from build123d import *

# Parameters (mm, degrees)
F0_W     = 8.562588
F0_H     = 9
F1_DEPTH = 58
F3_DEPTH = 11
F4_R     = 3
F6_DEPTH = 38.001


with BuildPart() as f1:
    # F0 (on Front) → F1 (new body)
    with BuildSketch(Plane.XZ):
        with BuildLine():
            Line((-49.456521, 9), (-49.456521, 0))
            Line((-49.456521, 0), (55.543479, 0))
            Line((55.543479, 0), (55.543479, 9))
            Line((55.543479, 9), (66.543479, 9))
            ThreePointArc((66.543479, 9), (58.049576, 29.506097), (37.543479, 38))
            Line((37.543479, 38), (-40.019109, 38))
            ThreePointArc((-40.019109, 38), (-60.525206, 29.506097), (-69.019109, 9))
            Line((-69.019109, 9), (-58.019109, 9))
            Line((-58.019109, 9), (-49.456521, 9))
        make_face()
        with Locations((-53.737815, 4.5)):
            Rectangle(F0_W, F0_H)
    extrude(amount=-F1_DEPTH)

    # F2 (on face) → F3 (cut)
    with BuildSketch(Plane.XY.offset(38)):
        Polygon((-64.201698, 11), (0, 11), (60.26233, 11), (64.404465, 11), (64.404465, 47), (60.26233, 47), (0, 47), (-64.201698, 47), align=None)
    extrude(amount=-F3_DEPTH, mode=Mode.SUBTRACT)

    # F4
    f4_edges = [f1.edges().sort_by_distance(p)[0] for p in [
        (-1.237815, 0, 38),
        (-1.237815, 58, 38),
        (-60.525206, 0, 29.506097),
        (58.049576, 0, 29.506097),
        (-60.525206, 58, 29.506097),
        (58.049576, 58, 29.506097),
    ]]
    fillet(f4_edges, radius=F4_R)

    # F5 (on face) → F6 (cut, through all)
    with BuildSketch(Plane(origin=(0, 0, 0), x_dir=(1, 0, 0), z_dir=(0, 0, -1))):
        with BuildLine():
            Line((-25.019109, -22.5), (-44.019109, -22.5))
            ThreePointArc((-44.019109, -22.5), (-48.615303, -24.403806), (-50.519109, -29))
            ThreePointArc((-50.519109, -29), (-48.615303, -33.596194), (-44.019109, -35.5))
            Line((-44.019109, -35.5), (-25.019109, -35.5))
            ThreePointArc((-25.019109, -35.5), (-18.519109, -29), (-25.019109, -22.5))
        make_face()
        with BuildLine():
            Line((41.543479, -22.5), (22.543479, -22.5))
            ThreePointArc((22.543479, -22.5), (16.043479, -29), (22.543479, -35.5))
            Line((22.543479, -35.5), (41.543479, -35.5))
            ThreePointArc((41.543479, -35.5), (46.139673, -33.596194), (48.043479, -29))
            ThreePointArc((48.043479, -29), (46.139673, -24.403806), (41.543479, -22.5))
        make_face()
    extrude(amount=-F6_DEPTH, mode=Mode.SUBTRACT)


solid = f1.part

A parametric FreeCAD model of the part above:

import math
import FreeCAD as App
import Part
import Sketcher
Q = App.Units.Quantity


def edges_at(feature, points):
    """Names of the edges that pass closest to the given points."""
    edges = feature.Shape.Edges
    near = lambda p: min(range(len(edges)), key=lambda i: edges[i].distToShape(Part.Vertex(*p))[0])
    return sorted({f"Edge{near(p) + 1}" for p in points})


def add_polygon(sketch, points):
    """Adds a closed chain of lines whose ends are joined by coincident constraints."""
    first, n = sketch.GeometryCount, len(points)
    for a, b in zip(points, points[1:] + points[:1]):
        sketch.addGeometry(Part.LineSegment(App.Vector(*a, 0), App.Vector(*b, 0)), False)
    for i in range(n):
        sketch.addConstraint(Sketcher.Constraint("Coincident", first + i, 2, first + (i + 1) % n, 1))

doc = App.newDocument("Part")
body = doc.addObject("PartDesign::Body", "Body")

# Sketch on XZ plane
sketch1 = body.newObject("Sketcher::SketchObject", "Sketch")
sketch1.AttachmentSupport = (doc.getObject("XZ_Plane"), [""])
sketch1.MapMode = "FlatFace"
sketch1.addGeometry([
    Part.LineSegment(App.Vector(55.543479, 0, 0), App.Vector(55.543479, 9, 0)),  # 0
    Part.LineSegment(App.Vector(55.543479, 9, 0), App.Vector(66.543479, 9, 0)),  # 1
    Part.ArcOfCircle(Part.Circle(App.Vector(37.54348, 9.000001, 0), App.Vector(0, 0, 1), 28.999999), math.radians(-0.000002), math.radians(90.000002)),  # 2
    Part.LineSegment(App.Vector(37.543479, 38, 0), App.Vector(-40.019109, 38, 0)),  # 3
    Part.ArcOfCircle(Part.Circle(App.Vector(-40.01911, 9.000001, 0), App.Vector(0, 0, 1), 28.999999), math.radians(89.999998), math.radians(180.000002)),  # 4
    Part.LineSegment(App.Vector(-69.019109, 9, 0), App.Vector(-58.019109, 9, 0)),  # 5
    Part.LineSegment(App.Vector(-58.019109, 9, 0), App.Vector(-58.019109, 0, 0)),  # 6
    Part.LineSegment(App.Vector(-58.019109, 0, 0), App.Vector(55.543479, 0, 0)),  # 7
], False)
sketch1.addConstraint([
    Sketcher.Constraint("Coincident", 0, 2, 1, 1),
    Sketcher.Constraint("Coincident", 1, 2, 2, 1),
    Sketcher.Constraint("Tangent", 2, 2, 3, 1),
    Sketcher.Constraint("Tangent", 3, 2, 4, 1),
    Sketcher.Constraint("Coincident", 4, 2, 5, 1),
    Sketcher.Constraint("Coincident", 5, 2, 6, 1),
    Sketcher.Constraint("Coincident", 6, 2, 7, 1),
    Sketcher.Constraint("Coincident", 7, 2, 0, 1),
    Sketcher.Constraint("Vertical", 0),
    Sketcher.Constraint("Horizontal", 1),
    Sketcher.Constraint("Horizontal", 3),
    Sketcher.Constraint("Horizontal", 5),
    Sketcher.Constraint("Vertical", 6),
    Sketcher.Constraint("Horizontal", 7),
    Sketcher.Constraint("Equal", 2, 4),
    Sketcher.Constraint("PointOnObject", 6, 2, -1),
    Sketcher.Constraint("Horizontal", 4, 3, 0, 2),
    Sketcher.Constraint("Horizontal", 1, 2, 4, 2),
    Sketcher.Constraint("Equal", 1, 5),
    Sketcher.Constraint("Radius", 2, Q("28.999999 mm")),
    Sketcher.Constraint("DistanceX", 1, 1, 1, 2, Q("11 mm")),
    Sketcher.Constraint("DistanceY", 0, 1, 0, 2, Q("9 mm")),
    Sketcher.Constraint("DistanceX", 3, 2, 3, 1, Q("77.562588 mm")),
    Sketcher.Constraint("DistanceX", -1, 1, 2, 3, Q("37.54348 mm")),
])
pad1 = body.newObject("PartDesign::Pad", "Pad")
pad1.Profile = sketch1
pad1.Length = 58
pad1.Reversed = True

# Sketch on XY plane
sketch2 = body.newObject("Sketcher::SketchObject", "Sketch001")
sketch2.AttachmentSupport = (doc.getObject("XY_Plane"), [""])
sketch2.MapMode = "FlatFace"
sketch2.AttachmentOffset = App.Placement(App.Vector(0, 0, 38), App.Rotation())
add_polygon(sketch2, [(-64.201698, 11), (64.404465, 11), (64.404465, 47), (-64.201698, 47)])  # lines 0-3
sketch2.addConstraint([
    Sketcher.Constraint("Horizontal", 0),
    Sketcher.Constraint("Vertical", 1),
    Sketcher.Constraint("Horizontal", 2),
    Sketcher.Constraint("Vertical", 3),
    Sketcher.Constraint("DistanceY", 1, 1, 1, 2, Q("36 mm")),
    Sketcher.Constraint("DistanceY", -1, 1, 0, 2, Q("11 mm")),
    Sketcher.Constraint("DistanceX", 0, 1, 0, 2, Q("128.606163 mm")),
    Sketcher.Constraint("DistanceX", -1, 1, 0, 2, Q("64.404465 mm")),
])
pocket1 = body.newObject("PartDesign::Pocket", "Pocket")
pocket1.Profile = sketch2
pocket1.Length = 11
doc.recompute()

fillet = body.newObject("PartDesign::Fillet", "Fillet")
fillet.Base = (pocket1, edges_at(pocket1, [
    (-1.238, 0, 38),
    (-1.238, 58, 38),
    (-60.525, 0, 29.506),
    (58.05, 0, 29.506),
    (-60.525, 58, 29.506),
    (58.05, 58, 29.506),
]))
fillet.Radius = 3

# Sketch on XY plane
sketch3 = body.newObject("Sketcher::SketchObject", "Sketch002")
sketch3.AttachmentSupport = (doc.getObject("XY_Plane"), [""])
sketch3.MapMode = "FlatFace"
sketch3.addGeometry([
    Part.LineSegment(App.Vector(-25.019109, 22.5, 0), App.Vector(-44.019109, 22.5, 0)),  # 0
    Part.ArcOfCircle(Part.Circle(App.Vector(-44.019109, 29, 0), App.Vector(0, 0, 1), 6.5), math.radians(-179.999998), math.radians(-90.000002)),  # 1
    Part.ArcOfCircle(Part.Circle(App.Vector(-44.019109, 29, 0), App.Vector(0, 0, 1), 6.5), math.radians(90.000002), math.radians(179.999998)),  # 2
    Part.LineSegment(App.Vector(-44.019109, 35.5, 0), App.Vector(-25.019109, 35.5, 0)),  # 3
    Part.ArcOfCircle(Part.Circle(App.Vector(-25.019109, 29, 0), App.Vector(0, 0, 1), 6.5), math.radians(-90), math.radians(90)),  # 4
    Part.LineSegment(App.Vector(41.543479, 22.5, 0), App.Vector(22.543479, 22.5, 0)),  # 5
    Part.ArcOfCircle(Part.Circle(App.Vector(22.543479, 29, 0), App.Vector(0, 0, 1), 6.5), math.radians(90), math.radians(270)),  # 6
    Part.LineSegment(App.Vector(22.543479, 35.5, 0), App.Vector(41.543479, 35.5, 0)),  # 7
    Part.ArcOfCircle(Part.Circle(App.Vector(41.543479, 29, 0), App.Vector(0, 0, 1), 6.5), math.radians(0.000002), math.radians(89.999998)),  # 8
    Part.ArcOfCircle(Part.Circle(App.Vector(41.543479, 29, 0), App.Vector(0, 0, 1), 6.5), math.radians(-89.999998), math.radians(-0.000002)),  # 9
], False)
sketch3.addConstraint([
    Sketcher.Constraint("Tangent", 0, 2, 1, 2),
    Sketcher.Constraint("Tangent", 1, 1, 2, 2),
    Sketcher.Constraint("Tangent", 2, 1, 3, 1),
    Sketcher.Constraint("Tangent", 3, 2, 4, 2),
    Sketcher.Constraint("Tangent", 4, 1, 0, 1),
    Sketcher.Constraint("Tangent", 5, 2, 6, 2),
    Sketcher.Constraint("Tangent", 6, 1, 7, 1),
    Sketcher.Constraint("Tangent", 7, 2, 8, 2),
    Sketcher.Constraint("Tangent", 8, 1, 9, 2),
    Sketcher.Constraint("Tangent", 9, 1, 5, 1),
    Sketcher.Constraint("Horizontal", 0),
    Sketcher.Constraint("Horizontal", 3),
    Sketcher.Constraint("Horizontal", 5),
    Sketcher.Constraint("Horizontal", 7),
    Sketcher.Constraint("Equal", 1, 2),
    Sketcher.Constraint("Equal", 4, 6),
    Sketcher.Constraint("Equal", 6, 8),
    Sketcher.Constraint("Horizontal", 4, 3, 6, 3),
    Sketcher.Constraint("Horizontal", 9, 3, 1, 1),
    Sketcher.Constraint("Horizontal", 1, 1, 8, 1),
    Sketcher.Constraint("Equal", 3, 5),
    Sketcher.Constraint("Radius", 1, Q("6.5 mm")),
    Sketcher.Constraint("DistanceX", 0, 2, 0, 1, Q("19 mm")),
    Sketcher.Constraint("DistanceY", -1, 1, 1, 3, Q("29 mm")),
    Sketcher.Constraint("DistanceX", 1, 3, -1, 1, Q("44.019109 mm")),
    Sketcher.Constraint("DistanceX", -1, 1, 6, 3, Q("22.543479 mm")),
])
pocket2 = body.newObject("PartDesign::Pocket", "Pocket001")
pocket2.Profile = sketch3
pocket2.Type = "ThroughAll"
pocket2.Reversed = True

doc.recompute()
